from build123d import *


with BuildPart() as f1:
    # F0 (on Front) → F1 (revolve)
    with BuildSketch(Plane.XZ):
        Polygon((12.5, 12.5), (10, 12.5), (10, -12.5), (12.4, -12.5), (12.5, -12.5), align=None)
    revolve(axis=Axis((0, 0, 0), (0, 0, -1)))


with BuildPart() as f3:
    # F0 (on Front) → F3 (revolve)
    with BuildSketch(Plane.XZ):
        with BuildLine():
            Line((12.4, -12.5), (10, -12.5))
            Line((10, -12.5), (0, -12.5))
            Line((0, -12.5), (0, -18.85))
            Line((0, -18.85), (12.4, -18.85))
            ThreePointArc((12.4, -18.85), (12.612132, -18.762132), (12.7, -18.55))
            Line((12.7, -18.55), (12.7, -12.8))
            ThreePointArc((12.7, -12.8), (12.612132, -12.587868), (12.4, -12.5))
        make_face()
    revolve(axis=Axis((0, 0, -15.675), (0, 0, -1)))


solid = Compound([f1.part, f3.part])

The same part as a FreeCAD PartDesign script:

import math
import FreeCAD as App
import Part
import Sketcher
Q = App.Units.Quantity


def add_polygon(sketch, points):
    """Adds a closed chain of lines whose ends are joined by coincident constraints."""
    first, n = sketch.GeometryCount, len(points)
    for a, b in zip(points, points[1:] + points[:1]):
        sketch.addGeometry(Part.LineSegment(App.Vector(*a, 0), App.Vector(*b, 0)), False)
    for i in range(n):
        sketch.addConstraint(Sketcher.Constraint("Coincident", first + i, 2, first + (i + 1) % n, 1))

doc = App.newDocument("Part")
body = doc.addObject("PartDesign::Body", "Body")

# Sketch on XZ plane
sketch1 = body.newObject("Sketcher::SketchObject", "Sketch")
sketch1.AttachmentSupport = (doc.getObject("XZ_Plane"), [""])
sketch1.MapMode = "FlatFace"
add_polygon(sketch1, [(12.5, 12.5), (10, 12.5), (10, -12.5), (12.5, -12.5)])  # lines 0-3
sketch1.addConstraint([
    Sketcher.Constraint("Horizontal", 0),
    Sketcher.Constraint("Vertical", 1),
    Sketcher.Constraint("Horizontal", 2),
    Sketcher.Constraint("Vertical", 3),
    Sketcher.Constraint("DistanceY", 1, 2, 1, 1, Q("25 mm")),
    Sketcher.Constraint("DistanceX", 0, 2, 0, 1, Q("2.5 mm")),
    Sketcher.Constraint("DistanceX", -1, 1, 0, 2, Q("10 mm")),
    Sketcher.Constraint("DistanceY", -1, 1, 0, 2, Q("12.5 mm")),
])
revolution = body.newObject("PartDesign::Revolution", "Revolution")
revolution.Profile = sketch1
revolution.ReferenceAxis = (sketch1, ["V_Axis"])
revolution.Angle = 360
body2 = doc.addObject("PartDesign::Body", "Body001")

# Sketch on XZ plane
sketch2 = body2.newObject("Sketcher::SketchObject", "Sketch001")
sketch2.AttachmentSupport = (doc.getObject("XZ_Plane001"), [""])
sketch2.MapMode = "FlatFace"
sketch2.addGeometry([
    Part.LineSegment(App.Vector(12.4, -12.5, 0), App.Vector(0, -12.5, 0)),  # 0
    Part.LineSegment(App.Vector(0, -12.5, 0), App.Vector(0, -18.85, 0)),  # 1
    Part.LineSegment(App.Vector(0, -18.85, 0), App.Vector(12.4, -18.85, 0)),  # 2
    Part.ArcOfCircle(Part.Circle(App.Vector(12.4, -18.55, 0), App.Vector(0, 0, 1), 0.3), math.radians(-89.999978), math.radians(-0.000022)),  # 3
    Part.LineSegment(App.Vector(12.7, -18.55, 0), App.Vector(12.7, -12.8, 0)),  # 4
    Part.ArcOfCircle(Part.Circle(App.Vector(12.4, -12.8, 0), App.Vector(0, 0, 1), 0.3), math.radians(0.000022), math.radians(89.999978)),  # 5
], False)
sketch2.addConstraint([
    Sketcher.Constraint("Coincident", 0, 2, 1, 1),
    Sketcher.Constraint("Coincident", 1, 2, 2, 1),
    Sketcher.Constraint("Tangent", 2, 2, 3, 1),
    Sketcher.Constraint("Tangent", 3, 2, 4, 1),
    Sketcher.Constraint("Tangent", 4, 2, 5, 1),
    Sketcher.Constraint("Tangent", 5, 2, 0, 1),
    Sketcher.Constraint("Horizontal", 0),
    Sketcher.Constraint("Vertical", 1),
    Sketcher.Constraint("Horizontal", 2),
    Sketcher.Constraint("Vertical", 4),
    Sketcher.Constraint("Equal", 3, 5),
    Sketcher.Constraint("PointOnObject", 0, 2, -2),
    Sketcher.Constraint("Radius", 3, Q("0.3 mm")),
    Sketcher.Constraint("DistanceX", 0, 2, 0, 1, Q("12.4 mm")),
    Sketcher.Constraint("DistanceY", 1, 2, 1, 1, Q("6.35 mm")),
    Sketcher.Constraint("DistanceY", 5, 3, -1, 1, Q("12.8 mm")),
])
revolution2 = body2.newObject("PartDesign::Revolution", "Revolution001")
revolution2.Profile = sketch2
revolution2.ReferenceAxis = (sketch2, ["V_Axis"])
revolution2.Angle = 360

doc.recompute()
